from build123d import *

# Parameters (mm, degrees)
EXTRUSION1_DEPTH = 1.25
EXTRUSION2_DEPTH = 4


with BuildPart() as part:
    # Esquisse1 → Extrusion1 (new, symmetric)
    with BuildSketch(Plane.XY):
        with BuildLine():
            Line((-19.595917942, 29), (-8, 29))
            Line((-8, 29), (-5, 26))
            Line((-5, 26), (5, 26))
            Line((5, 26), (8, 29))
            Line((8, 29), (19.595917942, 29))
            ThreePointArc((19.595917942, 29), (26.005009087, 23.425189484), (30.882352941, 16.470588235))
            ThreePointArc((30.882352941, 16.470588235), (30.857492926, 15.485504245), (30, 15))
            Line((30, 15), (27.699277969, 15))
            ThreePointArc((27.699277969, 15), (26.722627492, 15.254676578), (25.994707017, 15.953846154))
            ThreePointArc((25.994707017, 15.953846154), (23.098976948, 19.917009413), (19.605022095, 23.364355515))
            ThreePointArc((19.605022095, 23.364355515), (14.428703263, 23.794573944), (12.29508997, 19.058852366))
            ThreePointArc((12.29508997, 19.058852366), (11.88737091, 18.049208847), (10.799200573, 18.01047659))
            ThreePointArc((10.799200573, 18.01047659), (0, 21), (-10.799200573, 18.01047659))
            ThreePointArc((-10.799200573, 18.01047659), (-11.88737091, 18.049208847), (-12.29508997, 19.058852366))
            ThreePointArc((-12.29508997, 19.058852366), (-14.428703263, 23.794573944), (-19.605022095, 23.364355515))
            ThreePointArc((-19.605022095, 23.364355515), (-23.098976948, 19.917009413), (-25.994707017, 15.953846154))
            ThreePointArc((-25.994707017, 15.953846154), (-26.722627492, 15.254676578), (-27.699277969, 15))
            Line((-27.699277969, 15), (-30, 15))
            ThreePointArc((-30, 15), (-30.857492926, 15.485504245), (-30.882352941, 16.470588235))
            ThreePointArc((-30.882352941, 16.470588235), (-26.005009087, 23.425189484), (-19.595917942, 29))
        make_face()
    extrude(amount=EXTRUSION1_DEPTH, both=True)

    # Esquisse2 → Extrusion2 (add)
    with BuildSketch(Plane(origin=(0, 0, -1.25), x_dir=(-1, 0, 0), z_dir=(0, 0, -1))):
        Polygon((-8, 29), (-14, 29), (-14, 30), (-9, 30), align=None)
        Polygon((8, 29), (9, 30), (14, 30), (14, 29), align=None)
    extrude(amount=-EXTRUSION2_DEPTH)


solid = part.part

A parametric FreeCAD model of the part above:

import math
import FreeCAD as App
import Part
import Sketcher

V = App.Vector
Q = App.Units.Quantity

doc = App.newDocument("Part")
params = doc.addObject("Spreadsheet::Sheet", "Params")
for row, (alias, value) in enumerate([
    ("sketch1_radius", "35 mm"),
    ("sketch1_radius2", "1 mm"),
    ("sketch1_radius3", "2 mm"),
    ("sketch1_radius4", "21 mm"),
    ("sketch1_radius5", "30.5 mm"),
    ("pad1_length", "2.5 mm"),
    ("sketch2_width", "6 mm"),
    ("sketch2_width2", "5 mm"),
    ("pad2_length", "4 mm"),
], start=1):
    params.set(f"A{row}", alias)
    params.set(f"B{row}", "=" + value)
    params.setAlias(f"B{row}", alias)

body = doc.addObject("PartDesign::Body", "Body")

# Sketch on XY plane
sketch1 = body.newObject("Sketcher::SketchObject", "Sketch")
sketch1.AttachmentSupport = (doc.getObject("XY_Plane"), [""])
sketch1.MapMode = "FlatFace"
sketch1.addGeometry(Part.LineSegment(V(-8, 29, 0), V(-19.6, 29, 0)), False)
sketch1.addGeometry(Part.ArcOfCircle(Part.Circle(V(0, 0, 0), V(0, 0, 1), 35), math.radians(124), math.radians(152)), False)
sketch1.addGeometry(Part.ArcOfCircle(Part.Circle(V(-30, 16, 0), V(0, 0, 1), 1), math.radians(152), math.radians(270)), False)
sketch1.addGeometry(Part.LineSegment(V(-30, 15, 0), V(-27.7, 15, 0)), False)
sketch1.addGeometry(Part.ArcOfCircle(Part.Circle(V(-27.7, 17, 0), V(0, 0, 1), 2), math.radians(-90), math.radians(-32)), False)
sketch1.addGeometry(Part.ArcOfCircle(Part.Circle(V(0, 0, 0), V(0, 0, 1), 30.5), math.radians(130), math.radians(148.46)), False)
sketch1.addGeometry(Part.ArcOfCircle(Part.Circle(V(-16.7, 19.9, 0), V(0, 0, 1), 4.5), math.radians(-11), math.radians(130)), False)
sketch1.addGeometry(Part.ArcOfCircle(Part.Circle(V(-11.3, 18.9, 0), V(0, 0, 1), 1), math.radians(169), math.radians(301)), False)
sketch1.addGeometry(Part.ArcOfCircle(Part.Circle(V(0, 0, 0), V(0, 0, 1), 21), math.radians(59), math.radians(121)), False)
sketch1.addGeometry(Part.ArcOfCircle(Part.Circle(V(11.3, 18.9, 0), V(0, 0, 1), 1), math.radians(-121), math.radians(11)), False)
sketch1.addGeometry(Part.ArcOfCircle(Part.Circle(V(16.7, 19.9, 0), V(0, 0, 1), 4.5), math.radians(50), math.radians(191)), False)
sketch1.addGeometry(Part.ArcOfCircle(Part.Circle(V(0, 0, 0), V(0, 0, 1), 30.5), math.radians(31.54), math.radians(50)), False)
sketch1.addGeometry(Part.ArcOfCircle(Part.Circle(V(27.7, 17, 0), V(0, 0, 1), 2), math.radians(-148), math.radians(-90)), False)
sketch1.addGeometry(Part.LineSegment(V(27.7, 15, 0), V(30, 15, 0)), False)
sketch1.addGeometry(Part.ArcOfCircle(Part.Circle(V(30, 16, 0), V(0, 0, 1), 1), math.radians(-90), math.radians(28)), False)
sketch1.addGeometry(Part.ArcOfCircle(Part.Circle(V(0, 0, 0), V(0, 0, 1), 35), math.radians(28), math.radians(56)), False)
sketch1.addGeometry(Part.LineSegment(V(19.6, 29, 0), V(8, 29, 0)), False)
sketch1.addGeometry(Part.LineSegment(V(8, 29, 0), V(5, 26, 0)), False)
sketch1.addGeometry(Part.LineSegment(V(5, 26, 0), V(-5, 26, 0)), False)
sketch1.addGeometry(Part.LineSegment(V(-5, 26, 0), V(-8, 29, 0)), False)
sketch1.addConstraint(Sketcher.Constraint("Coincident", 0, 2, 1, 1))
sketch1.addConstraint(Sketcher.Constraint("Tangent", 1, 2, 2, 1))
sketch1.addConstraint(Sketcher.Constraint("Tangent", 2, 2, 3, 1))
sketch1.addConstraint(Sketcher.Constraint("Tangent", 3, 2, 4, 1))
sketch1.addConstraint(Sketcher.Constraint("Tangent", 4, 2, 5, 2))
sketch1.addConstraint(Sketcher.Constraint("Tangent", 5, 1, 6, 2))
sketch1.addConstraint(Sketcher.Constraint("Tangent", 6, 1, 7, 1))
sketch1.addConstraint(Sketcher.Constraint("Tangent", 7, 2, 8, 2))
sketch1.addConstraint(Sketcher.Constraint("Tangent", 8, 1, 9, 1))
sketch1.addConstraint(Sketcher.Constraint("Tangent", 9, 2, 10, 2))
sketch1.addConstraint(Sketcher.Constraint("Tangent", 10, 1, 11, 2))
sketch1.addConstraint(Sketcher.Constraint("Tangent", 11, 1, 12, 1))
sketch1.addConstraint(Sketcher.Constraint("Tangent", 12, 2, 13, 1))
sketch1.addConstraint(Sketcher.Constraint("Tangent", 13, 2, 14, 1))
sketch1.addConstraint(Sketcher.Constraint("Tangent", 14, 2, 15, 1))
sketch1.addConstraint(Sketcher.Constraint("Coincident", 15, 2, 16, 1))
sketch1.addConstraint(Sketcher.Constraint("Coincident", 16, 2, 17, 1))
sketch1.addConstraint(Sketcher.Constraint("Coincident", 17, 2, 18, 1))
sketch1.addConstraint(Sketcher.Constraint("Coincident", 18, 2, 19, 1))
sketch1.addConstraint(Sketcher.Constraint("Coincident", 19, 2, 0, 1))
sketch1.addConstraint(Sketcher.Constraint("Horizontal", 0))
sketch1.addConstraint(Sketcher.Constraint("Horizontal", 3))
sketch1.addConstraint(Sketcher.Constraint("Horizontal", 13))
sketch1.addConstraint(Sketcher.Constraint("Horizontal", 16))
sketch1.addConstraint(Sketcher.Constraint("Horizontal", 18))
sketch1.addConstraint(Sketcher.Constraint("Coincident", 1, 3, -1, 1))
sketch1.addConstraint(Sketcher.Constraint("Coincident", 5, 3, -1, 1))
sketch1.addConstraint(Sketcher.Constraint("Coincident", 8, 3, -1, 1))
sketch1.addConstraint(Sketcher.Constraint("Coincident", 11, 3, -1, 1))
sketch1.addConstraint(Sketcher.Constraint("Coincident", 15, 3, -1, 1))
sketch1.addConstraint(Sketcher.Constraint("Equal", 2, 7))
sketch1.addConstraint(Sketcher.Constraint("Equal", 7, 9))
sketch1.addConstraint(Sketcher.Constraint("Equal", 6, 10))
sketch1.addConstraint(Sketcher.Constraint("Equal", 5, 11))
sketch1.addConstraint(Sketcher.Constraint("Equal", 4, 12))
sketch1.addConstraint(Sketcher.Constraint("Equal", 9, 14))
sketch1.addConstraint(Sketcher.Constraint("Equal", 1, 15))
sketch1.addConstraint(Sketcher.Constraint("Symmetric", 16, 2, 19, 2, -2))
sketch1.addConstraint(Sketcher.Constraint("Perpendicular", 17, 19))
sketch1.addConstraint(Sketcher.Constraint("Horizontal", 7, 3, 9, 3))
sketch1.addConstraint(Sketcher.Constraint("Horizontal", 4, 3, 12, 3))
sketch1.addConstraint(Sketcher.Constraint("Equal", 17, 19))
sketch1.addConstraint(Sketcher.Constraint("Radius", 1, Q("35 mm")))
sketch1.addConstraint(Sketcher.Constraint("Radius", 2, Q("1 mm")))
sketch1.addConstraint(Sketcher.Constraint("Radius", 4, Q("2 mm")))
sketch1.addConstraint(Sketcher.Constraint("Radius", 8, Q("21 mm")))
sketch1.addConstraint(Sketcher.Constraint("Radius", 5, Q("30.5 mm")))
sketch1.addConstraint(Sketcher.Constraint("Radius", 6, Q("4.5 mm")))
sketch1.addConstraint(Sketcher.Constraint("DistanceX", 18, 2, 18, 1, Q("10 mm")))
sketch1.addConstraint(Sketcher.Constraint("DistanceX", 2, 3, -1, 1, Q("30 mm")))
sketch1.addConstraint(Sketcher.Constraint("DistanceY", -1, 1, 0, 2, Q("29 mm")))
sketch1.addConstraint(Sketcher.Constraint("DistanceX", -1, 1, 16, 2, Q("8 mm")))
sketch1.addConstraint(Sketcher.Constraint("DistanceX", 7, 2, -1, 1, Q("10.799201 mm")))
sketch1.setExpression("Constraints[42]", "Params.sketch1_radius")
sketch1.setExpression("Constraints[43]", "Params.sketch1_radius2")
sketch1.setExpression("Constraints[44]", "Params.sketch1_radius3")
sketch1.setExpression("Constraints[45]", "Params.sketch1_radius4")
sketch1.setExpression("Constraints[46]", "Params.sketch1_radius5")
pad1 = body.newObject("PartDesign::Pad", "Pad")
pad1.Profile = sketch1
pad1.setExpression("Length", "Params.pad1_length")
pad1.Midplane = True

# Sketch on XY plane
sketch2 = body.newObject("Sketcher::SketchObject", "Sketch001")
sketch2.AttachmentSupport = (doc.getObject("XY_Plane"), [""])
sketch2.MapMode = "FlatFace"
sketch2.AttachmentOffset = App.Placement(V(0, 0, -1.25), App.Rotation())
sketch2.addGeometry(Part.LineSegment(V(14, 29, 0), V(8, 29, 0)), False)
sketch2.addGeometry(Part.LineSegment(V(8, 29, 0), V(9, 30, 0)), False)
sketch2.addGeometry(Part.LineSegment(V(9, 30, 0), V(14, 30, 0)), False)
sketch2.addGeometry(Part.LineSegment(V(14, 30, 0), V(14, 29, 0)), False)
sketch2.addGeometry(Part.LineSegment(V(-9, 30, 0), V(-8, 29, 0)), False)
sketch2.addGeometry(Part.LineSegment(V(-8, 29, 0), V(-14, 29, 0)), False)
sketch2.addGeometry(Part.LineSegment(V(-14, 29, 0), V(-14, 30, 0)), False)
sketch2.addGeometry(Part.LineSegment(V(-14, 30, 0), V(-9, 30, 0)), False)
sketch2.addConstraint(Sketcher.Constraint("Coincident", 0, 2, 1, 1))
sketch2.addConstraint(Sketcher.Constraint("Coincident", 1, 2, 2, 1))
sketch2.addConstraint(Sketcher.Constraint("Coincident", 2, 2, 3, 1))
sketch2.addConstraint(Sketcher.Constraint("Coincident", 3, 2, 0, 1))
sketch2.addConstraint(Sketcher.Constraint("Coincident", 4, 2, 5, 1))
sketch2.addConstraint(Sketcher.Constraint("Coincident", 5, 2, 6, 1))
sketch2.addConstraint(Sketcher.Constraint("Coincident", 6, 2, 7, 1))
sketch2.addConstraint(Sketcher.Constraint("Coincident", 7, 2, 4, 1))
sketch2.addConstraint(Sketcher.Constraint("Horizontal", 0))
sketch2.addConstraint(Sketcher.Constraint("Horizontal", 2))
sketch2.addConstraint(Sketcher.Constraint("Vertical", 3))
sketch2.addConstraint(Sketcher.Constraint("Horizontal", 5))
sketch2.addConstraint(Sketcher.Constraint("Vertical", 6))
sketch2.addConstraint(Sketcher.Constraint("Horizontal", 7))
sketch2.addConstraint(Sketcher.Constraint("Symmetric", 0, 2, 4, 2, -2))
sketch2.addConstraint(Sketcher.Constraint("Symmetric", 2, 2, 6, 2, -2))
sketch2.addConstraint(Sketcher.Constraint("Perpendicular", 1, 4))
sketch2.addConstraint(Sketcher.Constraint("Equal", 2, 7))
sketch2.addConstraint(Sketcher.Constraint("DistanceX", 0, 2, 0, 1, Q("6 mm")))
sketch2.addConstraint(Sketcher.Constraint("DistanceX", 2, 1, 2, 2, Q("5 mm")))
sketch2.addConstraint(Sketcher.Constraint("DistanceX", -1, 1, 0, 2, Q("8 mm")))
sketch2.addConstraint(Sketcher.Constraint("DistanceY", -1, 1, 0, 2, Q("29 mm")))
sketch2.setExpression("Constraints[18]", "Params.sketch2_width")
sketch2.setExpression("Constraints[19]", "Params.sketch2_width2")
pad2 = body.newObject("PartDesign::Pad", "Pad001")
pad2.Profile = sketch2
pad2.setExpression("Length", "Params.pad2_length")

doc.recompute()
